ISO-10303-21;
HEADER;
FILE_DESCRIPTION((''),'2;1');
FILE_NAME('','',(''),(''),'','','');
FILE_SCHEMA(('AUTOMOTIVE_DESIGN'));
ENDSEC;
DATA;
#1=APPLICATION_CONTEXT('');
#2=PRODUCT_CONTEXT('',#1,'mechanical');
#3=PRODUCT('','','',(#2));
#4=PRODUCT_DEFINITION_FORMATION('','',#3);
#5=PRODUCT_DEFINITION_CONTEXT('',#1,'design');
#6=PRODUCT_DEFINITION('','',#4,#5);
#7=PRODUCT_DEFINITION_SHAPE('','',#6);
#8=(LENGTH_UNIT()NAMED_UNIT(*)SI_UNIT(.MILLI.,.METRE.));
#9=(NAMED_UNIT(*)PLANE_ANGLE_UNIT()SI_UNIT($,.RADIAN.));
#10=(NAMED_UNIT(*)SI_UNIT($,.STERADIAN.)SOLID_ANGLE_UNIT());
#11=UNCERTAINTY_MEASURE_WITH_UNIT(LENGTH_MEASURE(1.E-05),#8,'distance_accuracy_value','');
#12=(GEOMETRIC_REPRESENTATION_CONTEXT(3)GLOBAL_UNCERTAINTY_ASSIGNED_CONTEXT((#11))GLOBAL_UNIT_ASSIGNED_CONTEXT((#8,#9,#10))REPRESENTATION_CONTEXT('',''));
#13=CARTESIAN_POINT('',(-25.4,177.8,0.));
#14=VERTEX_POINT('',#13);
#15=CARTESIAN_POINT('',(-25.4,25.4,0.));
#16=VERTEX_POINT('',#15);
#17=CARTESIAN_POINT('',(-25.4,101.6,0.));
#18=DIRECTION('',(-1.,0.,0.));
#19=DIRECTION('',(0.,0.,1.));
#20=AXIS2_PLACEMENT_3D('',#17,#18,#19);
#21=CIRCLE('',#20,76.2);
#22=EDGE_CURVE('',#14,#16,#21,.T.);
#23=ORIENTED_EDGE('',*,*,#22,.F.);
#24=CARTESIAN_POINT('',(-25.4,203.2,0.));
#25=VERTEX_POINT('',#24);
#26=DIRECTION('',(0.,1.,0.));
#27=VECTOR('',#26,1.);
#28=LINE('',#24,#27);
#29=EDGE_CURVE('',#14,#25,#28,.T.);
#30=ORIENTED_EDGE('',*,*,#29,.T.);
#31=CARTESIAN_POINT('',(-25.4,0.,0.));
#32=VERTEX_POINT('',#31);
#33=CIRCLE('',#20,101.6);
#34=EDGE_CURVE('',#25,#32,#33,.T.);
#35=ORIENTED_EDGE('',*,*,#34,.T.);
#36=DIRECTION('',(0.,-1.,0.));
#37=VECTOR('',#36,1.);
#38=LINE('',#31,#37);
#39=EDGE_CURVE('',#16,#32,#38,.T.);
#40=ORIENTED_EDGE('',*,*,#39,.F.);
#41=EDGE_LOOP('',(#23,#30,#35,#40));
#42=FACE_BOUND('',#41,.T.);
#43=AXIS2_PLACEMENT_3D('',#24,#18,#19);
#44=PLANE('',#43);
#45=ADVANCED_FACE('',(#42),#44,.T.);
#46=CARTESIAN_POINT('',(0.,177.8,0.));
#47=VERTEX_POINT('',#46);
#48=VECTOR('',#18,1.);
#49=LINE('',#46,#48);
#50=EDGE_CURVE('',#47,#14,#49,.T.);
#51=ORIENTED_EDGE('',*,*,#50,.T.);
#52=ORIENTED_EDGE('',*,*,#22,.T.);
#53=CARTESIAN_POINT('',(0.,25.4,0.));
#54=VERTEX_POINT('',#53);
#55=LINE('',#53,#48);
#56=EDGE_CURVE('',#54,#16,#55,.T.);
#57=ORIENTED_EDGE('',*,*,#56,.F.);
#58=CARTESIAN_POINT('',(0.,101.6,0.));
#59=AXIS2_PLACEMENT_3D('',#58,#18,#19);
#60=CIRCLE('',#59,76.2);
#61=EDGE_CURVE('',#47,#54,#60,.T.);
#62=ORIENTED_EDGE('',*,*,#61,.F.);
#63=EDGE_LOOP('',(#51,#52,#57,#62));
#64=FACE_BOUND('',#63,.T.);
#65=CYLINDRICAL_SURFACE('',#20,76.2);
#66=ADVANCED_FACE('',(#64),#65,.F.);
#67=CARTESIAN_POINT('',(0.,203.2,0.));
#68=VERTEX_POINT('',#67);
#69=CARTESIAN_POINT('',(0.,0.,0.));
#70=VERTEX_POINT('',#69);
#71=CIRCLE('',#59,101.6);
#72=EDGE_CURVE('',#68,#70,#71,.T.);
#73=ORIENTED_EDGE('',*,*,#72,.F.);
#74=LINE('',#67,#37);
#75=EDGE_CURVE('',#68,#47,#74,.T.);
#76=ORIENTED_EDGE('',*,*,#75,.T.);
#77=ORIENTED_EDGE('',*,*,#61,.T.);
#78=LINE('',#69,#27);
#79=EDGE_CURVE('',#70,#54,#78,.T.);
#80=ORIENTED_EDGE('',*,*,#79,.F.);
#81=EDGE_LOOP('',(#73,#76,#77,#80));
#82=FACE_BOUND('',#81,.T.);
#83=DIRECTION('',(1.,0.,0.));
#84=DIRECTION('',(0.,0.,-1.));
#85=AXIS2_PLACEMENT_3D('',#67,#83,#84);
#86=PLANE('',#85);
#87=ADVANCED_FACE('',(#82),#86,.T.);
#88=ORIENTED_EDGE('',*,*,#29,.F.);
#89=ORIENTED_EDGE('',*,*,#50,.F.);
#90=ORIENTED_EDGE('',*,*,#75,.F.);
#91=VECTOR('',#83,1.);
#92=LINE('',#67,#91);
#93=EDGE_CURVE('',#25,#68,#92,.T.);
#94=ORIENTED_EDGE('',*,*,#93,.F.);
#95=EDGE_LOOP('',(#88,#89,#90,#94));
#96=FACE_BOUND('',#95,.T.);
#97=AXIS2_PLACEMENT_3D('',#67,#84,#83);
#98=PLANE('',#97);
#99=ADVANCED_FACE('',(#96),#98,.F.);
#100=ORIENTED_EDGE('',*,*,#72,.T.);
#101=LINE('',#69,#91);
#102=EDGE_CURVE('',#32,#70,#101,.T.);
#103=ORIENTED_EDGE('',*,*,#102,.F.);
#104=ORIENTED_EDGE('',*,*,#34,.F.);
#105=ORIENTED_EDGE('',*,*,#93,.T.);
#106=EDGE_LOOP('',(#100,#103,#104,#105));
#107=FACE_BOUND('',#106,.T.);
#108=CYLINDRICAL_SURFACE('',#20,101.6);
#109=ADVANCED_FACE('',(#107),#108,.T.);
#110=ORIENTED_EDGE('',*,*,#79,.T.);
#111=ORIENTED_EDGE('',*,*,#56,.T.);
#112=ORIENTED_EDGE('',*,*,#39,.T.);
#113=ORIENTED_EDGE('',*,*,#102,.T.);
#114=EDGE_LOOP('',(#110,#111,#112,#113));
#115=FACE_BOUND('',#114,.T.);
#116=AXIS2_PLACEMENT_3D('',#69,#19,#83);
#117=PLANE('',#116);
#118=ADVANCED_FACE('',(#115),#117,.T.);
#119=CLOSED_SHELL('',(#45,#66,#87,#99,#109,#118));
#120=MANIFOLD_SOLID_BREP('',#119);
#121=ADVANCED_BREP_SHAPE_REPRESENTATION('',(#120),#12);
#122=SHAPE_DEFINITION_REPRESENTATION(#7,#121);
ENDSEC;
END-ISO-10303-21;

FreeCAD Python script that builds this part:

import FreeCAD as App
import Part
import Sketcher
Q = App.Units.Quantity

doc = App.newDocument("Part")
body = doc.addObject("PartDesign::Body", "Body")

# Sketch on XY plane
sketch1 = doc.addObject("Sketcher::SketchObject", "Sketch")
body.addObject(sketch1)
sketch1.AttachmentSupport = (doc.XY_Plane, [""])
sketch1.MapMode = "FlatFace"
sketch1.addGeometry([
    Part.LineSegment(App.Vector(-25, 25, 0), App.Vector(-25, 0, 0)),
    Part.LineSegment(App.Vector(-25, 0, 0), App.Vector(0, 0, 0)),
    Part.LineSegment(App.Vector(0, 0, 0), App.Vector(0, 25, 0)),
    Part.LineSegment(App.Vector(0, 25, 0), App.Vector(-25, 25, 0)),
], False)
sketch1.addGeometry(Part.LineSegment(App.Vector(-25, 102, 0), App.Vector(0, 102, 0)), True)  # axis
sketch1.addConstraint([
    Sketcher.Constraint("Coincident", 0, 2, 1, 1),
    Sketcher.Constraint("Coincident", 1, 2, 2, 1),
    Sketcher.Constraint("Coincident", 2, 2, 3, 1),
    Sketcher.Constraint("Coincident", 3, 2, 0, 1),
    Sketcher.Constraint("Vertical", 0),
    Sketcher.Constraint("Horizontal", 1),
    Sketcher.Constraint("Vertical", 2),
    Sketcher.Constraint("Horizontal", 3),
    Sketcher.Constraint("Horizontal", 4),
    Sketcher.Constraint("Coincident", 1, 2, -1, 1),
    Sketcher.Constraint("PointOnObject", 4, 2, -2),
    Sketcher.Constraint("Vertical", 3, 2, 4, 1),
    Sketcher.Constraint("Equal", 4, 0),
    Sketcher.Constraint("DistanceX", 1, 1, 1, 2, Q("1 in")),
    Sketcher.Constraint("DistanceY", -1, 1, 4, 1, Q("4 in")),
])
revolution = doc.addObject("PartDesign::Revolution", "Revolution")
body.addObject(revolution)
revolution.Profile = sketch1
revolution.ReferenceAxis = (sketch1, ["Axis0"])
revolution.Angle = 180

doc.recompute()
